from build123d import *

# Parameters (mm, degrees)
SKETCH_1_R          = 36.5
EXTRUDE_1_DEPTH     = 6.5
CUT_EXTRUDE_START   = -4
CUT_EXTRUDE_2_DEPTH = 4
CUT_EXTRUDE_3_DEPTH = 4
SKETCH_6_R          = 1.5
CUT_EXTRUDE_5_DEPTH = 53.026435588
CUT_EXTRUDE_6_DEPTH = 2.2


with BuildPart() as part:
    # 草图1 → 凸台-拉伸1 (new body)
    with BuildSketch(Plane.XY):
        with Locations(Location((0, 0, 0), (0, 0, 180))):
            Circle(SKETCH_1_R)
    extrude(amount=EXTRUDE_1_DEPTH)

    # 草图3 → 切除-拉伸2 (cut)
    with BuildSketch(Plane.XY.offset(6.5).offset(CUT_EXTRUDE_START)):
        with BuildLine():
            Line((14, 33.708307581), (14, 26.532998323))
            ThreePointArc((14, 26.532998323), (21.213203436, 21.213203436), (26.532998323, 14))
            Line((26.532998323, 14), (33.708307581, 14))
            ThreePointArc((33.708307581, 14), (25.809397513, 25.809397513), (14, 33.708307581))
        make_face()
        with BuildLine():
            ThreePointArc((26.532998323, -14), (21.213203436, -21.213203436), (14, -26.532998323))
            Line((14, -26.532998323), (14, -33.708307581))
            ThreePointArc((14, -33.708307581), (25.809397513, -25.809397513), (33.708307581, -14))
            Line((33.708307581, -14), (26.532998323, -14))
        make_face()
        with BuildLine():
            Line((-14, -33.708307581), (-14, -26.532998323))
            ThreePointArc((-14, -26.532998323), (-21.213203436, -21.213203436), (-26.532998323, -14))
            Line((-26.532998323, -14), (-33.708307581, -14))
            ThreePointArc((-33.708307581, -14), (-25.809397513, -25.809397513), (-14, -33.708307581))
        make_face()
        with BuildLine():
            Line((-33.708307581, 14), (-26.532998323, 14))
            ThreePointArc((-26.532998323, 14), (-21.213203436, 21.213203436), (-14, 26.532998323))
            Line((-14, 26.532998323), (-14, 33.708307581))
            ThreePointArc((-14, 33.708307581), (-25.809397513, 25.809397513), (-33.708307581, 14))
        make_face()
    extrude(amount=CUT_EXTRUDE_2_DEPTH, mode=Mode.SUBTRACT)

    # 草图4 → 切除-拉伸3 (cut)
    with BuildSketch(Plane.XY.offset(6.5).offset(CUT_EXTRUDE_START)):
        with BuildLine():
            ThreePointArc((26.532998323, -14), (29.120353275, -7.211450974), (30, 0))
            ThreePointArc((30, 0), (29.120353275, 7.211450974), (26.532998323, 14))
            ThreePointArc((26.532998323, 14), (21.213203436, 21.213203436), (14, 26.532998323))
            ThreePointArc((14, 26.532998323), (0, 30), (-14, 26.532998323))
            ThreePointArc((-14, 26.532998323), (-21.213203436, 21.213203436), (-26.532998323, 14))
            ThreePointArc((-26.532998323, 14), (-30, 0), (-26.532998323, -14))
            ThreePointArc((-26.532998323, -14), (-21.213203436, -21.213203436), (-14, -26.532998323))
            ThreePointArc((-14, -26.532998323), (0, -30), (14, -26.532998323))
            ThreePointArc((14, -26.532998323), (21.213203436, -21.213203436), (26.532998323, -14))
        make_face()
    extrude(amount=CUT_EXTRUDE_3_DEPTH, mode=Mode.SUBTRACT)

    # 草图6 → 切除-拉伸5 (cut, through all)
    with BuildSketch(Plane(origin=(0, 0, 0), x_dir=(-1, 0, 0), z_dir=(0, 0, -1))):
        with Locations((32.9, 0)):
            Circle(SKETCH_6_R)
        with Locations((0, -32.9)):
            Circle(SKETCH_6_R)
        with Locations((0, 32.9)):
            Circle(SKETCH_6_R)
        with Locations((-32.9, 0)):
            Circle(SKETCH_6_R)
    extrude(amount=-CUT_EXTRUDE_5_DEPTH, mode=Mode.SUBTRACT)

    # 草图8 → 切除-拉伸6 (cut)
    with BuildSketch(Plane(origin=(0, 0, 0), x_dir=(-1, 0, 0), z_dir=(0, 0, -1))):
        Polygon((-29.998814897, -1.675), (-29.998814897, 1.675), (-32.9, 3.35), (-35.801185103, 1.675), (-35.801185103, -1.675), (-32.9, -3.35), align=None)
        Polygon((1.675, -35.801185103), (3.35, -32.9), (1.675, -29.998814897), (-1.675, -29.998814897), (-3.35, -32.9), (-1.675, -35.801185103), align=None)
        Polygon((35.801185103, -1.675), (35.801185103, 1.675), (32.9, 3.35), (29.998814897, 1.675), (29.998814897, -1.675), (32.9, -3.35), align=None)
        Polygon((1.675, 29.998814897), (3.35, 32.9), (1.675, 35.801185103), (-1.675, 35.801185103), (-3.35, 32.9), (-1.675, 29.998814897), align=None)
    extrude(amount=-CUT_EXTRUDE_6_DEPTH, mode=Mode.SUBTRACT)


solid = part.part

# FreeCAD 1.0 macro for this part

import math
import FreeCAD as App
import Part
import Sketcher
Q = App.Units.Quantity

doc = App.newDocument("Part")
params = doc.addObject("Spreadsheet::Sheet", "Params")
for row, (alias, value) in enumerate([
    ("sketch1_diameter", "73 mm"),
    ("pad1_length", "6.5 mm"),
    ("sketch2_radius", "30 mm"),
    ("sketch2_radius2", "36.5 mm"),
    ("pocket1_length", "4 mm"),
    ("sketch3_radius", "30 mm"),
    ("pocket2_length", "4 mm"),
    ("sketch4_diameter", "3 mm"),
    ("sketch5_width", "3.35 mm"),
    ("pocket4_length", "2.2 mm"),
], start=1):
    params.set(f"A{row}", alias)
    params.set(f"B{row}", "=" + value)
    params.setAlias(f"B{row}", alias)

body = doc.addObject("PartDesign::Body", "Body")

# Sketch on XY plane
sketch1 = body.newObject("Sketcher::SketchObject", "Sketch")
sketch1.AttachmentSupport = (doc.getObject("XY_Plane"), [""])
sketch1.MapMode = "FlatFace"
sketch1.addGeometry(Part.Circle(App.Vector(0, 0, 0), App.Vector(0, 0, 1), 36), False)
sketch1.addConstraint(Sketcher.Constraint("Coincident", 0, 3, -1, 1))
sketch1.addConstraint(Sketcher.Constraint("Diameter", 0, Q("73 mm")))
sketch1.setExpression("Constraints[1]", "Params.sketch1_diameter")
pad1 = body.newObject("PartDesign::Pad", "Pad")
pad1.Profile = sketch1
pad1.setExpression("Length", "Params.pad1_length")

# Sketch on XY plane
sketch2 = body.newObject("Sketcher::SketchObject", "Sketch001")
sketch2.AttachmentSupport = (doc.getObject("XY_Plane"), [""])
sketch2.MapMode = "FlatFace"
sketch2.AttachmentOffset = App.Placement(App.Vector(0, 0, 2.5), App.Rotation())
sketch2.addGeometry(Part.LineSegment(App.Vector(14, 34, 0), App.Vector(14, 27, 0)), False)
sketch2.addGeometry(Part.ArcOfCircle(Part.Circle(App.Vector(0, 0, 0), App.Vector(0, 0, 1), 30), math.radians(28), math.radians(62)), False)
sketch2.addGeometry(Part.LineSegment(App.Vector(27, 14, 0), App.Vector(34, 14, 0)), False)
sketch2.addGeometry(Part.ArcOfCircle(Part.Circle(App.Vector(0, 0, 0), App.Vector(0, 0, 1), 37), math.radians(23), math.radians(67)), False)
sketch2.addGeometry(Part.ArcOfCircle(Part.Circle(App.Vector(0, 0, 0), App.Vector(0, 0, 1), 30), math.radians(-62), math.radians(-28)), False)
sketch2.addGeometry(Part.LineSegment(App.Vector(14, -27, 0), App.Vector(14, -34, 0)), False)
sketch2.addGeometry(Part.ArcOfCircle(Part.Circle(App.Vector(0, 0, 0), App.Vector(0, 0, 1), 37), math.radians(-67), math.radians(-23)), False)
sketch2.addGeometry(Part.LineSegment(App.Vector(34, -14, 0), App.Vector(27, -14, 0)), False)
sketch2.addGeometry(Part.LineSegment(App.Vector(-14, -34, 0), App.Vector(-14, -27, 0)), False)
sketch2.addGeometry(Part.ArcOfCircle(Part.Circle(App.Vector(0, 0, 0), App.Vector(0, 0, 1), 30), math.radians(-152), math.radians(-118)), False)
sketch2.addGeometry(Part.LineSegment(App.Vector(-27, -14, 0), App.Vector(-34, -14, 0)), False)
sketch2.addGeometry(Part.ArcOfCircle(Part.Circle(App.Vector(0, 0, 0), App.Vector(0, 0, 1), 37), math.radians(-157), math.radians(-113)), False)
sketch2.addGeometry(Part.LineSegment(App.Vector(-34, 14, 0), App.Vector(-27, 14, 0)), False)
sketch2.addGeometry(Part.ArcOfCircle(Part.Circle(App.Vector(0, 0, 0), App.Vector(0, 0, 1), 30), math.radians(118), math.radians(152)), False)
sketch2.addGeometry(Part.LineSegment(App.Vector(-14, 27, 0), App.Vector(-14, 34, 0)), False)
sketch2.addGeometry(Part.ArcOfCircle(Part.Circle(App.Vector(0, 0, 0), App.Vector(0, 0, 1), 37), math.radians(113), math.radians(157)), False)
sketch2.addConstraint(Sketcher.Constraint("Coincident", 0, 2, 1, 2))
sketch2.addConstraint(Sketcher.Constraint("Coincident", 1, 1, 2, 1))
sketch2.addConstraint(Sketcher.Constraint("Coincident", 2, 2, 3, 1))
sketch2.addConstraint(Sketcher.Constraint("Coincident", 3, 2, 0, 1))
sketch2.addConstraint(Sketcher.Constraint("Coincident", 4, 1, 5, 1))
sketch2.addConstraint(Sketcher.Constraint("Coincident", 5, 2, 6, 1))
sketch2.addConstraint(Sketcher.Constraint("Coincident", 6, 2, 7, 1))
sketch2.addConstraint(Sketcher.Constraint("Coincident", 7, 2, 4, 2))
sketch2.addConstraint(Sketcher.Constraint("Coincident", 8, 2, 9, 2))
sketch2.addConstraint(Sketcher.Constraint("Coincident", 9, 1, 10, 1))
sketch2.addConstraint(Sketcher.Constraint("Coincident", 10, 2, 11, 1))
sketch2.addConstraint(Sketcher.Constraint("Coincident", 11, 2, 8, 1))
sketch2.addConstraint(Sketcher.Constraint("Coincident", 12, 2, 13, 2))
sketch2.addConstraint(Sketcher.Constraint("Coincident", 13, 1, 14, 1))
sketch2.addConstraint(Sketcher.Constraint("Coincident", 14, 2, 15, 1))
sketch2.addConstraint(Sketcher.Constraint("Coincident", 15, 2, 12, 1))
sketch2.addConstraint(Sketcher.Constraint("Vertical", 0))
sketch2.addConstraint(Sketcher.Constraint("Horizontal", 2))
sketch2.addConstraint(Sketcher.Constraint("Vertical", 5))
sketch2.addConstraint(Sketcher.Constraint("Horizontal", 7))
sketch2.addConstraint(Sketcher.Constraint("Vertical", 8))
sketch2.addConstraint(Sketcher.Constraint("Horizontal", 10))
sketch2.addConstraint(Sketcher.Constraint("Horizontal", 12))
sketch2.addConstraint(Sketcher.Constraint("Vertical", 14))
sketch2.addConstraint(Sketcher.Constraint("Coincident", 1, 3, -1, 1))
sketch2.addConstraint(Sketcher.Constraint("Coincident", 3, 3, -1, 1))
sketch2.addConstraint(Sketcher.Constraint("Coincident", 4, 3, -1, 1))
sketch2.addConstraint(Sketcher.Constraint("Coincident", 6, 3, -1, 1))
sketch2.addConstraint(Sketcher.Constraint("Coincident", 9, 3, -1, 1))
sketch2.addConstraint(Sketcher.Constraint("Coincident", 11, 3, -1, 1))
sketch2.addConstraint(Sketcher.Constraint("Coincident", 13, 3, -1, 1))
sketch2.addConstraint(Sketcher.Constraint("Coincident", 15, 3, -1, 1))
sketch2.addConstraint(Sketcher.Constraint("Equal", 1, 4))
sketch2.addConstraint(Sketcher.Constraint("Equal", 3, 6))
sketch2.addConstraint(Sketcher.Constraint("Equal", 4, 9))
sketch2.addConstraint(Sketcher.Constraint("Equal", 6, 11))
sketch2.addConstraint(Sketcher.Constraint("Equal", 9, 13))
sketch2.addConstraint(Sketcher.Constraint("Equal", 11, 15))
sketch2.addConstraint(Sketcher.Constraint("Horizontal", 4, 1, 8, 2))
sketch2.addConstraint(Sketcher.Constraint("Horizontal", 7, 2, 9, 1))
sketch2.addConstraint(Sketcher.Constraint("Horizontal", 2, 2, 12, 2))
sketch2.addConstraint(Sketcher.Constraint("Horizontal", 0, 2, 13, 1))
sketch2.addConstraint(Sketcher.Constraint("Vertical", 3, 2, 4, 1))
sketch2.addConstraint(Sketcher.Constraint("Vertical", 2, 2, 6, 2))
sketch2.addConstraint(Sketcher.Constraint("Equal", 12, 0))
sketch2.addConstraint(Sketcher.Constraint("Radius", 1, Q("30 mm")))
sketch2.addConstraint(Sketcher.Constraint("Radius", 3, Q("36.5 mm")))
sketch2.addConstraint(Sketcher.Constraint("DistanceX", -1, 1, 0, 2, Q("14 mm")))
sketch2.setExpression("Constraints[45]", "Params.sketch2_radius")
sketch2.setExpression("Constraints[46]", "Params.sketch2_radius2")
pocket1 = body.newObject("PartDesign::Pocket", "Pocket")
pocket1.Profile = sketch2
pocket1.setExpression("Length", "Params.pocket1_length")
pocket1.Reversed = True

# Sketch on XY plane
sketch3 = body.newObject("Sketcher::SketchObject", "Sketch002")
sketch3.AttachmentSupport = (doc.getObject("XY_Plane"), [""])
sketch3.MapMode = "FlatFace"
sketch3.AttachmentOffset = App.Placement(App.Vector(0, 0, 2.5), App.Rotation())
sketch3.addGeometry(Part.ArcOfCircle(Part.Circle(App.Vector(0, 0, 0), App.Vector(0, 0, 1), 30), math.radians(-28), math.radians(0)), False)
sketch3.addGeometry(Part.ArcOfCircle(Part.Circle(App.Vector(0, 0, 0), App.Vector(0, 0, 1), 30), math.radians(0), math.radians(28)), False)
sketch3.addGeometry(Part.ArcOfCircle(Part.Circle(App.Vector(0, 0, 0), App.Vector(0, 0, 1), 30), math.radians(28), math.radians(62)), False)
sketch3.addGeometry(Part.ArcOfCircle(Part.Circle(App.Vector(0, 0, 0), App.Vector(0, 0, 1), 30), math.radians(62), math.radians(118)), False)
sketch3.addGeometry(Part.ArcOfCircle(Part.Circle(App.Vector(0, 0, 0), App.Vector(0, 0, 1), 30), math.radians(118), math.radians(152)), False)
sketch3.addGeometry(Part.ArcOfCircle(Part.Circle(App.Vector(0, 0, 0), App.Vector(0, 0, 1), 30), math.radians(152), math.radians(208)), False)
sketch3.addGeometry(Part.ArcOfCircle(Part.Circle(App.Vector(0, 0, 0), App.Vector(0, 0, 1), 30), math.radians(-152), math.radians(-118)), False)
sketch3.addGeometry(Part.ArcOfCircle(Part.Circle(App.Vector(0, 0, 0), App.Vector(0, 0, 1), 30), math.radians(-118), math.radians(-62)), False)
sketch3.addGeometry(Part.ArcOfCircle(Part.Circle(App.Vector(0, 0, 0), App.Vector(0, 0, 1), 30), math.radians(-62), math.radians(-28)), False)
sketch3.addConstraint(Sketcher.Constraint("Tangent", 0, 2, 1, 1))
sketch3.addConstraint(Sketcher.Constraint("Tangent", 1, 2, 2, 1))
sketch3.addConstraint(Sketcher.Constraint("Tangent", 2, 2, 3, 1))
sketch3.addConstraint(Sketcher.Constraint("Tangent", 3, 2, 4, 1))
sketch3.addConstraint(Sketcher.Constraint("Tangent", 4, 2, 5, 1))
sketch3.addConstraint(Sketcher.Constraint("Tangent", 5, 2, 6, 1))
sketch3.addConstraint(Sketcher.Constraint("Tangent", 6, 2, 7, 1))
sketch3.addConstraint(Sketcher.Constraint("Tangent", 7, 2, 8, 1))
sketch3.addConstraint(Sketcher.Constraint("Tangent", 8, 2, 0, 1))
sketch3.addConstraint(Sketcher.Constraint("Coincident", 0, 3, -1, 1))
sketch3.addConstraint(Sketcher.Constraint("Coincident", 2, 3, -1, 1))
sketch3.addConstraint(Sketcher.Constraint("Coincident", 4, 3, -1, 1))
sketch3.addConstraint(Sketcher.Constraint("Coincident", 6, 3, -1, 1))
sketch3.addConstraint(Sketcher.Constraint("PointOnObject", 0, 2, -1))
sketch3.addConstraint(Sketcher.Constraint("Horizontal", 2, 2, 3, 2))
sketch3.addConstraint(Sketcher.Constraint("Horizontal", 1, 2, 4, 2))
sketch3.addConstraint(Sketcher.Constraint("Horizontal", 6, 2, 7, 2))
sketch3.addConstraint(Sketcher.Constraint("Horizontal", 5, 2, 8, 2))
sketch3.addConstraint(Sketcher.Constraint("Vertical", 4, 2, 5, 2))
sketch3.addConstraint(Sketcher.Constraint("Vertical", 3, 2, 6, 2))
sketch3.addConstraint(Sketcher.Constraint("Radius", 0, Q("30 mm")))
sketch3.addConstraint(Sketcher.Constraint("DistanceY", -1, 1, 1, 2, Q("14 mm")))
sketch3.addConstraint(Sketcher.Constraint("DistanceX", -1, 1, 2, 2, Q("14 mm")))
sketch3.setExpression("Constraints[20]", "Params.sketch3_radius")
pocket2 = body.newObject("PartDesign::Pocket", "Pocket001")
pocket2.Profile = sketch3
pocket2.setExpression("Length", "Params.pocket2_length")
pocket2.Reversed = True

# Sketch on XY plane
sketch4 = body.newObject("Sketcher::SketchObject", "Sketch003")
sketch4.AttachmentSupport = (doc.getObject("XY_Plane"), [""])
sketch4.MapMode = "FlatFace"
sketch4.addGeometry(Part.Circle(App.Vector(-32.9, 0, 0), App.Vector(0, 0, 1), 1.5), False)
sketch4.addGeometry(Part.Circle(App.Vector(0, -32.9, 0), App.Vector(0, 0, 1), 1.5), False)
sketch4.addGeometry(Part.Circle(App.Vector(0, 32.9, 0), App.Vector(0, 0, 1), 1.5), False)
sketch4.addGeometry(Part.Circle(App.Vector(32.9, 0, 0), App.Vector(0, 0, 1), 1.5), False)
sketch4.addConstraint(Sketcher.Constraint("Equal", 0, 1))
sketch4.addConstraint(Sketcher.Constraint("Equal", 1, 2))
sketch4.addConstraint(Sketcher.Constraint("Equal", 2, 3))
sketch4.addConstraint(Sketcher.Constraint("Symmetric", 1, 3, 2, 3, -1, 1))
sketch4.addConstraint(Sketcher.Constraint("Symmetric", 0, 3, 3, 3, -1, 1))
sketch4.addConstraint(Sketcher.Constraint("PointOnObject", 0, 3, -1))
sketch4.addConstraint(Sketcher.Constraint("PointOnObject", 1, 3, -2))
sketch4.addConstraint(Sketcher.Constraint("Diameter", 0, Q("3 mm")))
sketch4.addConstraint(Sketcher.Constraint("DistanceX", 0, 3, -1, 1, Q("32.9 mm")))
sketch4.addConstraint(Sketcher.Constraint("DistanceY", 1, 3, -1, 1, Q("32.9 mm")))
sketch4.setExpression("Constraints[7]", "Params.sketch4_diameter")
pocket3 = body.newObject("PartDesign::Pocket", "Pocket002")
pocket3.Profile = sketch4
pocket3.Type = "ThroughAll"
pocket3.Reversed = True

# Sketch on XY plane
sketch5 = body.newObject("Sketcher::SketchObject", "Sketch004")
sketch5.AttachmentSupport = (doc.getObject("XY_Plane"), [""])
sketch5.MapMode = "FlatFace"
sketch5.addGeometry(Part.LineSegment(App.Vector(30, -1.7, 0), App.Vector(30, 1.7, 0)), False)
sketch5.addGeometry(Part.LineSegment(App.Vector(30, 1.7, 0), App.Vector(32.9, 3.4, 0)), False)
sketch5.addGeometry(Part.LineSegment(App.Vector(32.9, 3.4, 0), App.Vector(35.8, 1.7, 0)), False)
sketch5.addGeometry(Part.LineSegment(App.Vector(35.8, 1.7, 0), App.Vector(35.8, -1.7, 0)), False)
sketch5.addGeometry(Part.LineSegment(App.Vector(35.8, -1.7, 0), App.Vector(32.9, -3.4, 0)), False)
sketch5.addGeometry(Part.LineSegment(App.Vector(32.9, -3.4, 0), App.Vector(30, -1.7, 0)), False)
sketch5.addGeometry(Part.LineSegment(App.Vector(-1.7, -35.8, 0), App.Vector(-3.4, -32.9, 0)), False)
sketch5.addGeometry(Part.LineSegment(App.Vector(-3.4, -32.9, 0), App.Vector(-1.7, -30, 0)), False)
sketch5.addGeometry(Part.LineSegment(App.Vector(-1.7, -30, 0), App.Vector(1.7, -30, 0)), False)
sketch5.addGeometry(Part.LineSegment(App.Vector(1.7, -30, 0), App.Vector(3.4, -32.9, 0)), False)
sketch5.addGeometry(Part.LineSegment(App.Vector(3.4, -32.9, 0), App.Vector(1.7, -35.8, 0)), False)
sketch5.addGeometry(Part.LineSegment(App.Vector(1.7, -35.8, 0), App.Vector(-1.7, -35.8, 0)), False)
sketch5.addGeometry(Part.LineSegment(App.Vector(-35.8, -1.7, 0), App.Vector(-35.8, 1.7, 0)), False)
sketch5.addGeometry(Part.LineSegment(App.Vector(-35.8, 1.7, 0), App.Vector(-32.9, 3.4, 0)), False)
sketch5.addGeometry(Part.LineSegment(App.Vector(-32.9, 3.4, 0), App.Vector(-30, 1.7, 0)), False)
sketch5.addGeometry(Part.LineSegment(App.Vector(-30, 1.7, 0), App.Vector(-30, -1.7, 0)), False)
sketch5.addGeometry(Part.LineSegment(App.Vector(-30, -1.7, 0), App.Vector(-32.9, -3.4, 0)), False)
sketch5.addGeometry(Part.LineSegment(App.Vector(-32.9, -3.4, 0), App.Vector(-35.8, -1.7, 0)), False)
sketch5.addGeometry(Part.LineSegment(App.Vector(-1.7, 30, 0), App.Vector(-3.4, 32.9, 0)), False)
sketch5.addGeometry(Part.LineSegment(App.Vector(-3.4, 32.9, 0), App.Vector(-1.7, 35.8, 0)), False)
sketch5.addGeometry(Part.LineSegment(App.Vector(-1.7, 35.8, 0), App.Vector(1.7, 35.8, 0)), False)
sketch5.addGeometry(Part.LineSegment(App.Vector(1.7, 35.8, 0), App.Vector(3.4, 32.9, 0)), False)
sketch5.addGeometry(Part.LineSegment(App.Vector(3.4, 32.9, 0), App.Vector(1.7, 30, 0)), False)
sketch5.addGeometry(Part.LineSegment(App.Vector(1.7, 30, 0), App.Vector(-1.7, 30, 0)), False)
sketch5.addConstraint(Sketcher.Constraint("Coincident", 0, 2, 1, 1))
sketch5.addConstraint(Sketcher.Constraint("Coincident", 1, 2, 2, 1))
sketch5.addConstraint(Sketcher.Constraint("Coincident", 2, 2, 3, 1))
sketch5.addConstraint(Sketcher.Constraint("Coincident", 3, 2, 4, 1))
sketch5.addConstraint(Sketcher.Constraint("Coincident", 4, 2, 5, 1))
sketch5.addConstraint(Sketcher.Constraint("Coincident", 5, 2, 0, 1))
sketch5.addConstraint(Sketcher.Constraint("Coincident", 6, 2, 7, 1))
sketch5.addConstraint(Sketcher.Constraint("Coincident", 7, 2, 8, 1))
sketch5.addConstraint(Sketcher.Constraint("Coincident", 8, 2, 9, 1))
sketch5.addConstraint(Sketcher.Constraint("Coincident", 9, 2, 10, 1))
sketch5.addConstraint(Sketcher.Constraint("Coincident", 10, 2, 11, 1))
sketch5.addConstraint(Sketcher.Constraint("Coincident", 11, 2, 6, 1))
sketch5.addConstraint(Sketcher.Constraint("Coincident", 12, 2, 13, 1))
sketch5.addConstraint(Sketcher.Constraint("Coincident", 13, 2, 14, 1))
sketch5.addConstraint(Sketcher.Constraint("Coincident", 14, 2, 15, 1))
sketch5.addConstraint(Sketcher.Constraint("Coincident", 15, 2, 16, 1))
sketch5.addConstraint(Sketcher.Constraint("Coincident", 16, 2, 17, 1))
sketch5.addConstraint(Sketcher.Constraint("Coincident", 17, 2, 12, 1))
sketch5.addConstraint(Sketcher.Constraint("Coincident", 18, 2, 19, 1))
sketch5.addConstraint(Sketcher.Constraint("Coincident", 19, 2, 20, 1))
sketch5.addConstraint(Sketcher.Constraint("Coincident", 20, 2, 21, 1))
sketch5.addConstraint(Sketcher.Constraint("Coincident", 21, 2, 22, 1))
sketch5.addConstraint(Sketcher.Constraint("Coincident", 22, 2, 23, 1))
sketch5.addConstraint(Sketcher.Constraint("Coincident", 23, 2, 18, 1))
sketch5.addConstraint(Sketcher.Constraint("Vertical", 0))
sketch5.addConstraint(Sketcher.Constraint("Vertical", 3))
sketch5.addConstraint(Sketcher.Constraint("Horizontal", 8))
sketch5.addConstraint(Sketcher.Constraint("Horizontal", 11))
sketch5.addConstraint(Sketcher.Constraint("Vertical", 12))
sketch5.addConstraint(Sketcher.Constraint("Vertical", 15))
sketch5.addConstraint(Sketcher.Constraint("Horizontal", 20))
sketch5.addConstraint(Sketcher.Constraint("Horizontal", 23))
sketch5.addConstraint(Sketcher.Constraint("Symmetric", 3, 2, 12, 2, -1, 1))
sketch5.addConstraint(Sketcher.Constraint("Symmetric", 4, 2, 13, 2, -1, 1))
sketch5.addConstraint(Sketcher.Constraint("Symmetric", 5, 2, 14, 2, -1, 1))
sketch5.addConstraint(Sketcher.Constraint("Symmetric", 1, 2, 16, 2, -1, 1))
sketch5.addConstraint(Sketcher.Constraint("Symmetric", 9, 2, 18, 2, -1, 1))
sketch5.addConstraint(Sketcher.Constraint("Symmetric", 10, 2, 19, 2, -1, 1))
sketch5.addConstraint(Sketcher.Constraint("Symmetric", 6, 2, 21, 2, -1, 1))
sketch5.addConstraint(Sketcher.Constraint("Symmetric", 7, 2, 22, 2, -1, 1))
sketch5.addConstraint(Sketcher.Constraint("Symmetric", 6, 2, 9, 2, -2))
sketch5.addConstraint(Sketcher.Constraint("Symmetric", 1, 2, 13, 2, -2))
sketch5.addConstraint(Sketcher.Constraint("Parallel", 1, 4))
sketch5.addConstraint(Sketcher.Constraint("Parallel", 2, 5))
sketch5.addConstraint(Sketcher.Constraint("Perpendicular", 4, 6))
sketch5.addConstraint(Sketcher.Constraint("Perpendicular", 5, 7))
sketch5.addConstraint(Sketcher.Constraint("Parallel", 6, 9))
sketch5.addConstraint(Sketcher.Constraint("Parallel", 7, 10))
sketch5.addConstraint(Sketcher.Constraint("Parallel", 13, 16))
sketch5.addConstraint(Sketcher.Constraint("Parallel", 14, 17))
sketch5.addConstraint(Sketcher.Constraint("Perpendicular", 16, 18))
sketch5.addConstraint(Sketcher.Constraint("Parallel", 18, 21))
sketch5.addConstraint(Sketcher.Constraint("Horizontal", 0, 2, 2, 2))
sketch5.addConstraint(Sketcher.Constraint("Horizontal", 3, 2, 5, 2))
sketch5.addConstraint(Sketcher.Constraint("Vertical", 8, 2, 10, 2))
sketch5.addConstraint(Sketcher.Constraint("Equal", 23, 0))
sketch5.addConstraint(Sketcher.Constraint("Equal", 5, 6))
sketch5.addConstraint(Sketcher.Constraint("Angle", 1, Q("30 deg")))
sketch5.addConstraint(Sketcher.Constraint("DistanceX", 8, 1, 8, 2, Q("3.35 mm")))
sketch5.addConstraint(Sketcher.Constraint("DistanceX", -1, 1, 1, 2, Q("32.9 mm")))
sketch5.addConstraint(Sketcher.Constraint("DistanceY", 6, 2, -1, 1, Q("32.9 mm")))
sketch5.addConstraint(Sketcher.Constraint("DistanceY", 4, 2, 1, 2, Q("6.7 mm")))
sketch5.setExpression("Constraints[58]", "Params.sketch5_width")
pocket4 = body.newObject("PartDesign::Pocket", "Pocket003")
pocket4.Profile = sketch5
pocket4.setExpression("Length", "Params.pocket4_length")
pocket4.Reversed = True

doc.recompute()
